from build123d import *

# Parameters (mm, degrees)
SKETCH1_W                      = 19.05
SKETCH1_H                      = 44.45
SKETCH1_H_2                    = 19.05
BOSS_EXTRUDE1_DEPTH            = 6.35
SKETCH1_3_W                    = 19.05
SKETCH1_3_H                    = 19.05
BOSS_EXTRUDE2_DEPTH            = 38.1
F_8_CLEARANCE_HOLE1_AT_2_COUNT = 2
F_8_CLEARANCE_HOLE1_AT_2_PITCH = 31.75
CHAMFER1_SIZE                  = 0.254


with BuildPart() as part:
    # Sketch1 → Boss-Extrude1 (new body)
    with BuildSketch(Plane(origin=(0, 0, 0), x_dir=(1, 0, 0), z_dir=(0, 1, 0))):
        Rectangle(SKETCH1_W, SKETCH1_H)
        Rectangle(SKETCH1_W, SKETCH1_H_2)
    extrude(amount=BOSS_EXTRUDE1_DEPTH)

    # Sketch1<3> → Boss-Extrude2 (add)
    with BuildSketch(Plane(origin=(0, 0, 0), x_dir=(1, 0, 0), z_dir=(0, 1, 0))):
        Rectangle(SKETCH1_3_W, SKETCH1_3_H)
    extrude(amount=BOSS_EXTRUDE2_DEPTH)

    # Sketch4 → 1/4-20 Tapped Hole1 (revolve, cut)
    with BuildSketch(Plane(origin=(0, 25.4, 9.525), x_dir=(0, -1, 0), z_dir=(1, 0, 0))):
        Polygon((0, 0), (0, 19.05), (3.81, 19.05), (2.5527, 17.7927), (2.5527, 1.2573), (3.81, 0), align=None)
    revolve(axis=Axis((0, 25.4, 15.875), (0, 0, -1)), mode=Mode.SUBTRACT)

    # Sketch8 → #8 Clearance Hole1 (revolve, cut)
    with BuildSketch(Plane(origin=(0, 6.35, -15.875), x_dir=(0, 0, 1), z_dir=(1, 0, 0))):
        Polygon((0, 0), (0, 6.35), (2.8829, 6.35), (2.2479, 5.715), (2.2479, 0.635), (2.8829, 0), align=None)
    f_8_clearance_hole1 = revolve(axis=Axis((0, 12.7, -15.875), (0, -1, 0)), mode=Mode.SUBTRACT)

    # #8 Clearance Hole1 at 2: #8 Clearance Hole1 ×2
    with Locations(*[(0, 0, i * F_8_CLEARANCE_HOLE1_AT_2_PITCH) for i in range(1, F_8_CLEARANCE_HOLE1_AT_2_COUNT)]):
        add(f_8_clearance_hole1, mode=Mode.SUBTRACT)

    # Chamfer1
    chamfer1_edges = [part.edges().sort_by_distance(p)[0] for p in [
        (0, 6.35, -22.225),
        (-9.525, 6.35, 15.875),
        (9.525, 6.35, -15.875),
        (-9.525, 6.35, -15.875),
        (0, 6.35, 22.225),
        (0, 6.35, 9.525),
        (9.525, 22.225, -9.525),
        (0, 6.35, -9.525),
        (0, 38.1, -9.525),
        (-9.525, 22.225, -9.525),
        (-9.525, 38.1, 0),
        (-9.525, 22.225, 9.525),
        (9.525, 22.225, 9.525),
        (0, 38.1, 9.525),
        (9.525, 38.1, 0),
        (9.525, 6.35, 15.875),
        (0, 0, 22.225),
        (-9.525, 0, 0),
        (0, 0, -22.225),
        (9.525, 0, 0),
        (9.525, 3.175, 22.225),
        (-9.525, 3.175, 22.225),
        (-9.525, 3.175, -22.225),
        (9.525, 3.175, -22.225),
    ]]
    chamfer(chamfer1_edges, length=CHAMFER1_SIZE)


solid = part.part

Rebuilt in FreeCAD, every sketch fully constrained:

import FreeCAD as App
import Part
import Sketcher

V = App.Vector
Q = App.Units.Quantity


def edges_at(feature, points):
    """Names of the edges that pass closest to the given points."""
    edges = feature.Shape.Edges
    near = lambda p: min(range(len(edges)), key=lambda i: edges[i].distToShape(Part.Vertex(*p))[0])
    return sorted({f"Edge{near(p) + 1}" for p in points})

doc = App.newDocument("Part")
body = doc.addObject("PartDesign::Body", "Body")

# Sketch on XZ plane
sketch1 = body.newObject("Sketcher::SketchObject", "Sketch")
sketch1.AttachmentSupport = (doc.getObject("XZ_Plane"), [""])
sketch1.MapMode = "FlatFace"
sketch1.addGeometry([
    Part.LineSegment(V(-10, 22, 0), V(10, 22, 0)),
    Part.LineSegment(V(10, 22, 0), V(10, -22, 0)),
    Part.LineSegment(V(10, -22, 0), V(-10, -22, 0)),
    Part.LineSegment(V(-10, -22, 0), V(-10, 22, 0)),
], False)
sketch1.addConstraint([
    Sketcher.Constraint("Coincident", 0, 2, 1, 1),
    Sketcher.Constraint("Coincident", 1, 2, 2, 1),
    Sketcher.Constraint("Coincident", 2, 2, 3, 1),
    Sketcher.Constraint("Coincident", 3, 2, 0, 1),
    Sketcher.Constraint("Horizontal", 0),
    Sketcher.Constraint("Vertical", 1),
    Sketcher.Constraint("Horizontal", 2),
    Sketcher.Constraint("Vertical", 3),
    Sketcher.Constraint("Symmetric", 0, 2, 2, 2, -1, 1),
    Sketcher.Constraint("DistanceX", 0, 1, 0, 2, Q("0.75 in")),
    Sketcher.Constraint("DistanceY", 1, 2, 1, 1, Q("1.75 in")),
])
pad1 = body.newObject("PartDesign::Pad", "Pad")
pad1.Profile = sketch1
pad1.Length = Q("0.25 in")
pad1.Reversed = True

# Sketch on XZ plane
sketch2 = body.newObject("Sketcher::SketchObject", "Sketch001")
sketch2.AttachmentSupport = (doc.getObject("XZ_Plane"), [""])
sketch2.MapMode = "FlatFace"
sketch2.addGeometry([
    Part.LineSegment(V(-10, -10, 0), V(-10, 10, 0)),
    Part.LineSegment(V(-10, 10, 0), V(10, 10, 0)),
    Part.LineSegment(V(10, 10, 0), V(10, -10, 0)),
    Part.LineSegment(V(10, -10, 0), V(-10, -10, 0)),
], False)
sketch2.addConstraint([
    Sketcher.Constraint("Coincident", 0, 2, 1, 1),
    Sketcher.Constraint("Coincident", 1, 2, 2, 1),
    Sketcher.Constraint("Coincident", 2, 2, 3, 1),
    Sketcher.Constraint("Coincident", 3, 2, 0, 1),
    Sketcher.Constraint("Vertical", 0),
    Sketcher.Constraint("Horizontal", 1),
    Sketcher.Constraint("Vertical", 2),
    Sketcher.Constraint("Horizontal", 3),
    Sketcher.Constraint("Symmetric", 0, 2, 2, 2, -1, 1),
    Sketcher.Constraint("Equal", 3, 0),
    Sketcher.Constraint("DistanceX", 1, 1, 1, 2, Q("0.75 in")),
])
pad2 = body.newObject("PartDesign::Pad", "Pad001")
pad2.Profile = sketch2
pad2.Length = Q("1.5 in")
pad2.Reversed = True

# Sketch on YZ plane
sketch3 = body.newObject("Sketcher::SketchObject", "Sketch002")
sketch3.AttachmentSupport = (doc.getObject("YZ_Plane"), [""])
sketch3.MapMode = "FlatFace"
sketch3.addGeometry([
    Part.LineSegment(V(25.4, -9.5, 0), V(25.4, 9.5, 0)),  # 0
    Part.LineSegment(V(25.4, 9.5, 0), V(21.6, 9.5, 0)),  # 1
    Part.LineSegment(V(21.6, 9.5, 0), V(22.8, 8.3, 0)),  # 2
    Part.LineSegment(V(22.8, 8.3, 0), V(22.8, -8.3, 0)),  # 3
    Part.LineSegment(V(22.8, -8.3, 0), V(21.6, -9.5, 0)),  # 4
    Part.LineSegment(V(21.6, -9.5, 0), V(25.4, -9.5, 0)),  # 5
], False)
sketch3.addGeometry(Part.LineSegment(V(25.4, 9.5, 0), V(25.4, -9.5, 0)), True)  # axis
sketch3.addConstraint([
    Sketcher.Constraint("Coincident", 0, 2, 1, 1),
    Sketcher.Constraint("Coincident", 1, 2, 2, 1),
    Sketcher.Constraint("Coincident", 2, 2, 3, 1),
    Sketcher.Constraint("Coincident", 3, 2, 4, 1),
    Sketcher.Constraint("Coincident", 4, 2, 5, 1),
    Sketcher.Constraint("Coincident", 5, 2, 0, 1),
    Sketcher.Constraint("Vertical", 0),
    Sketcher.Constraint("Horizontal", 1),
    Sketcher.Constraint("Vertical", 3),
    Sketcher.Constraint("Horizontal", 5),
    Sketcher.Constraint("Vertical", 6),
    Sketcher.Constraint("Coincident", 6, 1, 0, 2),
    Sketcher.Constraint("Symmetric", 1, 2, 4, 2, -1),
    Sketcher.Constraint("Perpendicular", 2, 4),
    Sketcher.Constraint("Horizontal", 4, 2, 6, 2),
    Sketcher.Constraint("Equal", 2, 4),
    Sketcher.Constraint("DistanceX", -1, 1, 0, 2, Q("1 in")),
    Sketcher.Constraint("DistanceX", 1, 2, 1, 1, Q("0.15 in")),
    Sketcher.Constraint("DistanceY", 0, 1, 0, 2, Q("0.75 in")),
    Sketcher.Constraint("DistanceY", 3, 2, 3, 1, Q("0.651 in")),
])
groove = body.newObject("PartDesign::Groove", "Groove")
groove.Profile = sketch3
groove.ReferenceAxis = (sketch3, ["Axis0"])
groove.Angle = 360

# Sketch on YZ plane
sketch4 = body.newObject("Sketcher::SketchObject", "Sketch003")
sketch4.AttachmentSupport = (doc.getObject("YZ_Plane"), [""])
sketch4.MapMode = "FlatFace"
sketch4.addGeometry([
    Part.LineSegment(V(0, -15.9, 0), V(6.3, -15.9, 0)),  # 0
    Part.LineSegment(V(6.3, -15.9, 0), V(6.3, -13, 0)),  # 1
    Part.LineSegment(V(6.3, -13, 0), V(5.7, -13.6, 0)),  # 2
    Part.LineSegment(V(5.7, -13.6, 0), V(0.6, -13.6, 0)),  # 3
    Part.LineSegment(V(0.6, -13.6, 0), V(0, -13, 0)),  # 4
    Part.LineSegment(V(0, -13, 0), V(0, -15.9, 0)),  # 5
], False)
sketch4.addGeometry(Part.LineSegment(V(6.3, -15.9, 0), V(0, -15.9, 0)), True)  # axis
sketch4.addConstraint([
    Sketcher.Constraint("Coincident", 0, 2, 1, 1),
    Sketcher.Constraint("Coincident", 1, 2, 2, 1),
    Sketcher.Constraint("Coincident", 2, 2, 3, 1),
    Sketcher.Constraint("Coincident", 3, 2, 4, 1),
    Sketcher.Constraint("Coincident", 4, 2, 5, 1),
    Sketcher.Constraint("Coincident", 5, 2, 0, 1),
    Sketcher.Constraint("Horizontal", 0),
    Sketcher.Constraint("Vertical", 1),
    Sketcher.Constraint("Horizontal", 3),
    Sketcher.Constraint("Vertical", 5),
    Sketcher.Constraint("Horizontal", 6),
    Sketcher.Constraint("Coincident", 6, 1, 0, 2),
    Sketcher.Constraint("PointOnObject", 4, 2, -2),
    Sketcher.Constraint("PointOnObject", 6, 2, -2),
    Sketcher.Constraint("Perpendicular", 2, 4),
    Sketcher.Constraint("Horizontal", 1, 2, 4, 2),
    Sketcher.Constraint("Equal", 2, 4),
    Sketcher.Constraint("DistanceX", 3, 2, 3, 1, Q("0.2 in")),
    Sketcher.Constraint("DistanceX", 0, 1, 0, 2, Q("0.25 in")),
    Sketcher.Constraint("DistanceY", 1, 1, 1, 2, Q("0.1135 in")),
    Sketcher.Constraint("DistanceY", 0, 2, -1, 1, Q("0.625 in")),
])
groove2 = body.newObject("PartDesign::Groove", "Groove001")
groove2.Profile = sketch4
groove2.ReferenceAxis = (sketch4, ["Axis0"])
groove2.Angle = 360
doc.recompute()

linearpattern = body.newObject("PartDesign::LinearPattern", "LinearPattern")
linearpattern.Originals = [groove2]
linearpattern.Direction = (doc.getObject("Z_Axis"), [""])
linearpattern.Mode = "offset"
linearpattern.Offset = Q("1.25 in")
linearpattern.Occurrences = 2
body.Tip = linearpattern
doc.recompute()

chamfer = body.newObject("PartDesign::Chamfer", "Chamfer")
chamfer.Base = (linearpattern, edges_at(linearpattern, [
    (0, 6.35, -22.225),
    (-9.525, 6.35, 15.875),
    (9.525, 6.35, -15.875),
    (-9.525, 6.35, -15.875),
    (0, 6.35, 22.225),
    (0, 6.35, 9.525),
    (9.525, 22.225, -9.525),
    (0, 6.35, -9.525),
    (0, 38.1, -9.525),
    (-9.525, 22.225, -9.525),
    (-9.525, 38.1, 0),
    (-9.525, 22.225, 9.525),
    (9.525, 22.225, 9.525),
    (0, 38.1, 9.525),
    (9.525, 38.1, 0),
    (9.525, 6.35, 15.875),
    (0, 0, 22.225),
    (-9.525, 0, 0),
    (0, 0, -22.225),
    (9.525, 0, 0),
    (9.525, 3.175, 22.225),
    (-9.525, 3.175, 22.225),
    (-9.525, 3.175, -22.225),
    (9.525, 3.175, -22.225),
]))
chamfer.Size = Q("0.01 in")

doc.recompute()
